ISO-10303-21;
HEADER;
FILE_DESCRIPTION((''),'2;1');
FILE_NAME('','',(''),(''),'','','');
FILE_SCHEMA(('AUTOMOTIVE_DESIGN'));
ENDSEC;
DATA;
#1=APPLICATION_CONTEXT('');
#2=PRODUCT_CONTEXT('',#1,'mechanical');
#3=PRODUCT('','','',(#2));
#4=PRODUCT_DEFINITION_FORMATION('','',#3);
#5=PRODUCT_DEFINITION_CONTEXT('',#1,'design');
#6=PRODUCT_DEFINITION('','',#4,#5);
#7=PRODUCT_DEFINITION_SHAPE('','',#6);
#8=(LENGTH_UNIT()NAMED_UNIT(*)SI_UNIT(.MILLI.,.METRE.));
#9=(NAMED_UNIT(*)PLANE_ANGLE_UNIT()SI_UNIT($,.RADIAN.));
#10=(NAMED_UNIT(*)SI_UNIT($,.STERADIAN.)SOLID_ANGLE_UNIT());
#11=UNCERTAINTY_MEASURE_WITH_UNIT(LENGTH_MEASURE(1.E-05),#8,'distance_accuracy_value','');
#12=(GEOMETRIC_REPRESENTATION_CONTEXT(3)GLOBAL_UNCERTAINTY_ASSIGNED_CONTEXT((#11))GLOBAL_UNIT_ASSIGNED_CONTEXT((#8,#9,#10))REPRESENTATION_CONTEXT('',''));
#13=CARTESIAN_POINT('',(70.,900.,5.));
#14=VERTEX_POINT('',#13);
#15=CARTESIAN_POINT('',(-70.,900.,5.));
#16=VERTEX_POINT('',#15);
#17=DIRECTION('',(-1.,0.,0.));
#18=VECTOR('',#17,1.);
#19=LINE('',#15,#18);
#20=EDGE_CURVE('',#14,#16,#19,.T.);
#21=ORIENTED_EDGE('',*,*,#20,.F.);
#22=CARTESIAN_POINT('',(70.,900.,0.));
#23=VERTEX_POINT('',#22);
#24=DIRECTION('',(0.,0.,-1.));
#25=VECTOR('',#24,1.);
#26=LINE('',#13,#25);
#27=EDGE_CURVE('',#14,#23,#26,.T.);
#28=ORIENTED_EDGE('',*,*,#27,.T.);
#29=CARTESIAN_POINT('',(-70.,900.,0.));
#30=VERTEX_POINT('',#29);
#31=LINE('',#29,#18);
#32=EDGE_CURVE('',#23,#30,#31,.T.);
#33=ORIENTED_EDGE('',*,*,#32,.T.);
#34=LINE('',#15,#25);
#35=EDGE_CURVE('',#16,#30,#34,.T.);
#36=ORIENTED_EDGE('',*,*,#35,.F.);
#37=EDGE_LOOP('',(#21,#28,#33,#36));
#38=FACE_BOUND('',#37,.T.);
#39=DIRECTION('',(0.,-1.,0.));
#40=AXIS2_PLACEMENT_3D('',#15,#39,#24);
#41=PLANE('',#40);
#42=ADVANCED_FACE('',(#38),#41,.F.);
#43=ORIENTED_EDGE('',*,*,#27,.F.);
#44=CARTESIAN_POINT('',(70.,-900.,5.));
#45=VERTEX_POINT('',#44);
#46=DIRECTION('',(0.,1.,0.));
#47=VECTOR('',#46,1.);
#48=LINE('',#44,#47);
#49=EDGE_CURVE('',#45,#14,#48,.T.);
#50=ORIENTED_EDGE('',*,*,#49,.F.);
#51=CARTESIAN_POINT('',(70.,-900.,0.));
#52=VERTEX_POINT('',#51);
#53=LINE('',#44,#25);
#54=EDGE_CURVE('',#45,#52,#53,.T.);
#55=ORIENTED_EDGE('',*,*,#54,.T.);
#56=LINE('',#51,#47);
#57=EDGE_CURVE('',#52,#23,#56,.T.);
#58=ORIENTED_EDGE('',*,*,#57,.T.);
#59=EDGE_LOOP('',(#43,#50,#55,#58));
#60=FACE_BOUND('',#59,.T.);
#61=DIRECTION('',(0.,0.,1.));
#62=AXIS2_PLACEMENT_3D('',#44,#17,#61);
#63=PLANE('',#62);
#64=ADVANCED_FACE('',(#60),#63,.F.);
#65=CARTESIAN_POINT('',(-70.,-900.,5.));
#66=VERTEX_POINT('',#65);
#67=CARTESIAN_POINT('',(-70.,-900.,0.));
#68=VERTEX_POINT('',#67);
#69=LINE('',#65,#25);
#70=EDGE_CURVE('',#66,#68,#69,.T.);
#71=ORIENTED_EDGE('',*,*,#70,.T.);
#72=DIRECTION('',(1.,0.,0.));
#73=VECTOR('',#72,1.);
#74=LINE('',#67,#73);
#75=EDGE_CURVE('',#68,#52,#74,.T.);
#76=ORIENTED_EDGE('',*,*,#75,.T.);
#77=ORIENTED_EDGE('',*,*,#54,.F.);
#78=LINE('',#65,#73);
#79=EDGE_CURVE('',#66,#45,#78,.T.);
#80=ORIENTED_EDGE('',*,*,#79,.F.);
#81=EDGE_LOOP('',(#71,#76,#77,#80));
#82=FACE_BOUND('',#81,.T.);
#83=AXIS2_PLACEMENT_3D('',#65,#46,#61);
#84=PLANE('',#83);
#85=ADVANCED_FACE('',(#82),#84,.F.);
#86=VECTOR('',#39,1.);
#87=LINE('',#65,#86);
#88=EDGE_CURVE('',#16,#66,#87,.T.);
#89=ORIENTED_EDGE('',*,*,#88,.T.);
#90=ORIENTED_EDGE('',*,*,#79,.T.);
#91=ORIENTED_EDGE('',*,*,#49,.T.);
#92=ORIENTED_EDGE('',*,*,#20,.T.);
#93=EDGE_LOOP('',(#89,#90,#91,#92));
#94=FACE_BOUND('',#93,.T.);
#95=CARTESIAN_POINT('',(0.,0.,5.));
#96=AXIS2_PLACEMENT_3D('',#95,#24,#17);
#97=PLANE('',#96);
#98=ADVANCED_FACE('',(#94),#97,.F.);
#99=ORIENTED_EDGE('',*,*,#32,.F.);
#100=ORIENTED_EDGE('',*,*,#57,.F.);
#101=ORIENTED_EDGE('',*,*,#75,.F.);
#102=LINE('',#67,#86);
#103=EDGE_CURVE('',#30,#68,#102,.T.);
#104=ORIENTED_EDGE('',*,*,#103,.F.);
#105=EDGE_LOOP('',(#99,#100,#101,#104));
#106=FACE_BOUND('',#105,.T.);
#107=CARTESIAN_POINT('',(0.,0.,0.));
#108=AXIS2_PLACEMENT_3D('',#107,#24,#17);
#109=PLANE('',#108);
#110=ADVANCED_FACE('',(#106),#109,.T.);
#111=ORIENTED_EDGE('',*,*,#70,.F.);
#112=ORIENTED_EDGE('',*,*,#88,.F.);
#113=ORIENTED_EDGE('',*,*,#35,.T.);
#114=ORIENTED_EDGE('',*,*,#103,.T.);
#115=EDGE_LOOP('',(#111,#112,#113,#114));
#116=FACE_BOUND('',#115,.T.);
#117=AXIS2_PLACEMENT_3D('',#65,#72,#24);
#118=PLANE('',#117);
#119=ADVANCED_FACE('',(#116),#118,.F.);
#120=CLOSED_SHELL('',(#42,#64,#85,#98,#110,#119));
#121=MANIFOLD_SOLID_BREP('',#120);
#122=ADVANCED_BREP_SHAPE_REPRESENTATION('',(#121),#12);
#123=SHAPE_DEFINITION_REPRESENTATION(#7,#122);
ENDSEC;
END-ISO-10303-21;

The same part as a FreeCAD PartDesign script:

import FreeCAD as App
import Part
import Sketcher
from FreeCAD import Vector

doc = App.newDocument("Part")
body = doc.addObject("PartDesign::Body", "Body")

sketch1 = doc.addObject("Sketcher::SketchObject", "Sketch")
body.addObject(sketch1)
sketch1.AttachmentSupport = (doc.XY_Plane, [""])
sketch1.MapMode = "FlatFace"
sketch1.addGeometry(Part.LineSegment(Vector(-70, 900, 0), Vector(-70, -900, 0)), False)
sketch1.addGeometry(Part.LineSegment(Vector(-70, -900, 0), Vector(70, -900, 0)), False)
sketch1.addGeometry(Part.LineSegment(Vector(70, -900, 0), Vector(70, 900, 0)), False)
sketch1.addGeometry(Part.LineSegment(Vector(70, 900, 0), Vector(-70, 900, 0)), False)
sketch1.addConstraint(Sketcher.Constraint("Coincident", 0, 2, 1, 1))
sketch1.addConstraint(Sketcher.Constraint("Coincident", 1, 2, 2, 1))
sketch1.addConstraint(Sketcher.Constraint("Coincident", 2, 2, 3, 1))
sketch1.addConstraint(Sketcher.Constraint("Coincident", 3, 2, 0, 1))
sketch1.addConstraint(Sketcher.Constraint("Vertical", 0))
sketch1.addConstraint(Sketcher.Constraint("Horizontal", 1))
sketch1.addConstraint(Sketcher.Constraint("Vertical", 2))
sketch1.addConstraint(Sketcher.Constraint("Horizontal", 3))
sketch1.addConstraint(Sketcher.Constraint("Symmetric", 0, 2, 2, 2, -1, 1))
sketch1.addConstraint(Sketcher.Constraint("DistanceX", 1, 1, 1, 2, 140.0))
sketch1.addConstraint(Sketcher.Constraint("DistanceY", 0, 2, 0, 1, 1800.0))
pad1 = doc.addObject("PartDesign::Pad", "Pad")
body.addObject(pad1)
pad1.Profile = sketch1
pad1.Length = 5

doc.recompute()
